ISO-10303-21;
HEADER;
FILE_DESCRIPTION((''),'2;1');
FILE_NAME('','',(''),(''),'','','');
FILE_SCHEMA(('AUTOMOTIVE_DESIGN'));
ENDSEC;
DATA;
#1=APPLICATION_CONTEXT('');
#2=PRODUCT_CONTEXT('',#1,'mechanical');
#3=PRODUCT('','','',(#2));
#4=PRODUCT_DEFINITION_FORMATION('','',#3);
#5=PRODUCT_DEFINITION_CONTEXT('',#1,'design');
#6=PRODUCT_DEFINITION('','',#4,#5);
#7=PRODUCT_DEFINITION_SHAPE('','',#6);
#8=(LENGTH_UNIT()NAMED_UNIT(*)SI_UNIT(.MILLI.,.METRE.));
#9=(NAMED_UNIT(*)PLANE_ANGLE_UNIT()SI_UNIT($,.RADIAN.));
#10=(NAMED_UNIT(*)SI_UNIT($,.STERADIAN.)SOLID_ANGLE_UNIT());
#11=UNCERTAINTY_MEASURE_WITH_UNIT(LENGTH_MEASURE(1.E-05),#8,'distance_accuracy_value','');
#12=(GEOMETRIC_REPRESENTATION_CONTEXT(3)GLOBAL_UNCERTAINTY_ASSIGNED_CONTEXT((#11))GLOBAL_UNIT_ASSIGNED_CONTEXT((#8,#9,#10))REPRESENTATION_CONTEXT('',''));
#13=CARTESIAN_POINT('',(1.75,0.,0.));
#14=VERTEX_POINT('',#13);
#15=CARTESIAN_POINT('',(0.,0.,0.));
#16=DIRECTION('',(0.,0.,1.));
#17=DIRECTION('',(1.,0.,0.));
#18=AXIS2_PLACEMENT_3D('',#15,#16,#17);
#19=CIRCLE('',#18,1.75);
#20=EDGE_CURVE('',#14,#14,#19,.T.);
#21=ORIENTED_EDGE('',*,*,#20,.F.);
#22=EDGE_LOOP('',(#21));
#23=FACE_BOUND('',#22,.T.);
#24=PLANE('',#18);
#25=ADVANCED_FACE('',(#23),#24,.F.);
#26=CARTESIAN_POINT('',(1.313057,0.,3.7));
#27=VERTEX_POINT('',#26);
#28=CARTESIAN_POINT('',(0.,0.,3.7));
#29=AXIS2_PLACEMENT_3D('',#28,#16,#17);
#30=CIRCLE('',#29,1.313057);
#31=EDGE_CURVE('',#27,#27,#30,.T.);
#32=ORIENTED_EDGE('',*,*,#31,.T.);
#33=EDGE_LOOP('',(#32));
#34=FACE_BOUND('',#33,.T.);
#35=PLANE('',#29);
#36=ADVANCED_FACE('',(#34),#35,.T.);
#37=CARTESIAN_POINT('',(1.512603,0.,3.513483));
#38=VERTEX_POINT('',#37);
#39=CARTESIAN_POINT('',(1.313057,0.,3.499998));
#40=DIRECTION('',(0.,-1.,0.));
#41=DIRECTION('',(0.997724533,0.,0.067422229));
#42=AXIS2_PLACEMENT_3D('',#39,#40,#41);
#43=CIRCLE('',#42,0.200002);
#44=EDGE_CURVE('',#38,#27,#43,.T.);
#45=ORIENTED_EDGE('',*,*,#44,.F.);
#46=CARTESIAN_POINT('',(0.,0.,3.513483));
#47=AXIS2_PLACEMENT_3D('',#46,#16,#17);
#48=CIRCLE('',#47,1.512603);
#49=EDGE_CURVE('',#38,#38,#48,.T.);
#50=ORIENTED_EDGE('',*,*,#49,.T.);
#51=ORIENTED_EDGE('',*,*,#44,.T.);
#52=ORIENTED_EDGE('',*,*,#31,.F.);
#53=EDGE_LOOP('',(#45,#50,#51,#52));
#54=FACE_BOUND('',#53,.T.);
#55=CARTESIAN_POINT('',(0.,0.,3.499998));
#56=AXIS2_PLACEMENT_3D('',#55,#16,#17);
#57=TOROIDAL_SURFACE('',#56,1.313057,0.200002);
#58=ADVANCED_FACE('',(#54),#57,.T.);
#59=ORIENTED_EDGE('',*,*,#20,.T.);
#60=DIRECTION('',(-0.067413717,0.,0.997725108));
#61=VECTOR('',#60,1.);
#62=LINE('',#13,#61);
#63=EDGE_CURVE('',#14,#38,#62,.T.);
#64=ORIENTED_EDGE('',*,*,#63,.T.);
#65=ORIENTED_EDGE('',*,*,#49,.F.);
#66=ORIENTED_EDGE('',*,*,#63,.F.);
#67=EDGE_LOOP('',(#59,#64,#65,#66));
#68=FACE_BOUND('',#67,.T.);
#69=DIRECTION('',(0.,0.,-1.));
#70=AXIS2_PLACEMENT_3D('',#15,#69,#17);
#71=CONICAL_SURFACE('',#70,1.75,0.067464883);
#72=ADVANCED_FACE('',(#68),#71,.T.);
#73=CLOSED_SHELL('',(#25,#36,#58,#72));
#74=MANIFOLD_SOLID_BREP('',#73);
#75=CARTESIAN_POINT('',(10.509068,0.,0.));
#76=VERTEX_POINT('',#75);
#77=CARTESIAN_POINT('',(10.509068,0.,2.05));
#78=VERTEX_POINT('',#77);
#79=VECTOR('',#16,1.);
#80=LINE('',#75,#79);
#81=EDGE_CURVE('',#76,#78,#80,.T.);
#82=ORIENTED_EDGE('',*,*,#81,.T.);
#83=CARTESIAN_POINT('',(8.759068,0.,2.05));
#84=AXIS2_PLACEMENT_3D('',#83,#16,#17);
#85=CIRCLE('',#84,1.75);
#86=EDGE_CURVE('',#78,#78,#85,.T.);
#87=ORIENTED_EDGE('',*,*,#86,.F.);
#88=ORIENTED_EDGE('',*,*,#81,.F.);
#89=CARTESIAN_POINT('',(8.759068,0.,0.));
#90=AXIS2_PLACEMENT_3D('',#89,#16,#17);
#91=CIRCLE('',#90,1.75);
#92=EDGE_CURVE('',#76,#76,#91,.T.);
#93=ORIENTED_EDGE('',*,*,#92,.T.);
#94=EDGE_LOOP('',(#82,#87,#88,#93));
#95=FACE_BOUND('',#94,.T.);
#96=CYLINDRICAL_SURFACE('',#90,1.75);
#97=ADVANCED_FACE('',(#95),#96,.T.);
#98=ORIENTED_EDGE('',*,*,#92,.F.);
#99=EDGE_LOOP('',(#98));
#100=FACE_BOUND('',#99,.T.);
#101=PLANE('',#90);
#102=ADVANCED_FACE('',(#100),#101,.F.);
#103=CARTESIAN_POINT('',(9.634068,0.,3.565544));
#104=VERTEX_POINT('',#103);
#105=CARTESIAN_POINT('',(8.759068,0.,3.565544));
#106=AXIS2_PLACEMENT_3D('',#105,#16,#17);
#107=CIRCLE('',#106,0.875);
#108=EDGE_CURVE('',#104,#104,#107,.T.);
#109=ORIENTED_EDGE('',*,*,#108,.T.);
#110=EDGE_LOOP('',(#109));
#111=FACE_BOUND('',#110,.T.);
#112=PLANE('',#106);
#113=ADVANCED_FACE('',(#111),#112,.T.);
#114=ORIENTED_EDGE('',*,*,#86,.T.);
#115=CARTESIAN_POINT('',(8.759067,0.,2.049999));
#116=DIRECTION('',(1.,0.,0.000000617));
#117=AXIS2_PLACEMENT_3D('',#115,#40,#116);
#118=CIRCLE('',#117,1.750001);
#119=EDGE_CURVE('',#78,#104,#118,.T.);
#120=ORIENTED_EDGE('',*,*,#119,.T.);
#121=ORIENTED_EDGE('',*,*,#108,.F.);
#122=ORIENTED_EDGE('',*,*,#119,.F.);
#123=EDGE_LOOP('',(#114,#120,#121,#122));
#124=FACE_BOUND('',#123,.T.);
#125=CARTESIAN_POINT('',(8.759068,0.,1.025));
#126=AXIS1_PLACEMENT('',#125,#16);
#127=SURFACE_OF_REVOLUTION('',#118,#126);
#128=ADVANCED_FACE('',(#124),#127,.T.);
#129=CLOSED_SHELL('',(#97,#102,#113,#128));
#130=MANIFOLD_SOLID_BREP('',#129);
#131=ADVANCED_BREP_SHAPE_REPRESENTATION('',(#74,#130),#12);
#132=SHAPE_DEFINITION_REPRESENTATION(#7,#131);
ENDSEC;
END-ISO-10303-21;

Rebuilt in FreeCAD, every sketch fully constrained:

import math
import FreeCAD as App
import Part
import Sketcher

V = App.Vector

doc = App.newDocument("Part")
params = doc.addObject("Spreadsheet::Sheet", "Params")
for row, (alias, value) in enumerate([
    ("sketch1_radius", "0.200002 mm"),
    ("sketch1_height", "3.7 mm"),
    ("sketch1_width", "1.75 mm"),
    ("revolution_angle", "360 deg"),
    ("sketch2_radius", "1.750001 mm"),
    ("sketch2_height", "2.05 mm"),
    ("revolution2_angle", "360 deg"),
], start=1):
    params.set(f"A{row}", alias)
    params.set(f"B{row}", "=" + value)
    params.setAlias(f"B{row}", alias)

body = doc.addObject("PartDesign::Body", "Body")

sketch1 = doc.addObject("Sketcher::SketchObject", "Sketch")
body.addObject(sketch1)
sketch1.AttachmentSupport = (doc.XZ_Plane, [""])
sketch1.MapMode = "FlatFace"
sketch1.addGeometry(Part.LineSegment(V(0, 3.7, 0), V(0, 0, 0)), False)
sketch1.addGeometry(Part.LineSegment(V(0, 0, 0), V(1.75, 0, 0)), False)
sketch1.addGeometry(Part.LineSegment(V(1.75, 0, 0), V(1.51, 3.51, 0)), False)
sketch1.addGeometry(Part.ArcOfCircle(Part.Circle(V(1.31, 3.5, 0), V(0, 0, 1), 0.2), math.radians(4), math.radians(90)), False)
sketch1.addGeometry(Part.LineSegment(V(1.31, 3.7, 0), V(0, 3.7, 0)), False)
sketch1.addConstraint(Sketcher.Constraint("Coincident", 0, 2, 1, 1))
sketch1.addConstraint(Sketcher.Constraint("Coincident", 1, 2, 2, 1))
sketch1.addConstraint(Sketcher.Constraint("Coincident", 2, 2, 3, 1))
sketch1.addConstraint(Sketcher.Constraint("Coincident", 3, 2, 4, 1))
sketch1.addConstraint(Sketcher.Constraint("Coincident", 4, 2, 0, 1))
sketch1.addConstraint(Sketcher.Constraint("Vertical", 0))
sketch1.addConstraint(Sketcher.Constraint("Horizontal", 1))
sketch1.addConstraint(Sketcher.Constraint("Horizontal", 4))
sketch1.addConstraint(Sketcher.Constraint("Coincident", 0, 2, -1, 1))
sketch1.addConstraint(Sketcher.Constraint("Radius", 3, 0.200002))
sketch1.addConstraint(Sketcher.Constraint("DistanceY", 0, 2, 0, 1, 3.7))
sketch1.addConstraint(Sketcher.Constraint("DistanceX", 1, 1, 1, 2, 1.75))
sketch1.addConstraint(Sketcher.Constraint("DistanceX", 4, 2, 4, 1, 1.313057))
sketch1.addConstraint(Sketcher.Constraint("Distance", 2, 3.521494))
sketch1.addConstraint(Sketcher.Constraint("DistanceX", -1, 1, 3, 3, 1.313057))
sketch1.setExpression("Constraints[9]", "Params.sketch1_radius")
sketch1.setExpression("Constraints[10]", "Params.sketch1_height")
sketch1.setExpression("Constraints[11]", "Params.sketch1_width")
revolution = doc.addObject("PartDesign::Revolution", "Revolution")
body.addObject(revolution)
revolution.Profile = sketch1
revolution.ReferenceAxis = (sketch1, ["V_Axis"])
revolution.setExpression("Angle", "Params.revolution_angle")
body2 = doc.addObject("PartDesign::Body", "Body001")

sketch2 = doc.addObject("Sketcher::SketchObject", "Sketch001")
body2.addObject(sketch2)
sketch2.AttachmentSupport = (doc.getObject("XZ_Plane001"), [""])
sketch2.MapMode = "FlatFace"
sketch2.addGeometry(Part.LineSegment(V(8.8, 0, 0), V(10.5, 0, 0)), False)
sketch2.addGeometry(Part.LineSegment(V(10.5, 0, 0), V(10.5, 2, 0)), False)
sketch2.addGeometry(Part.ArcOfCircle(Part.Circle(V(8.8, 2, 0), V(0, 0, 1), 1.8), math.radians(0), math.radians(60)), False)
sketch2.addGeometry(Part.LineSegment(V(9.6, 3.6, 0), V(8.8, 3.6, 0)), False)
sketch2.addGeometry(Part.LineSegment(V(8.8, 3.6, 0), V(8.8, 0, 0)), False)
sketch2.addGeometry(Part.LineSegment(V(8.8, 0, 0), V(8.8, 3.6, 0)), True)
sketch2.addConstraint(Sketcher.Constraint("Coincident", 0, 2, 1, 1))
sketch2.addConstraint(Sketcher.Constraint("Tangent", 1, 2, 2, 1))
sketch2.addConstraint(Sketcher.Constraint("Coincident", 2, 2, 3, 1))
sketch2.addConstraint(Sketcher.Constraint("Coincident", 3, 2, 4, 1))
sketch2.addConstraint(Sketcher.Constraint("Coincident", 4, 2, 0, 1))
sketch2.addConstraint(Sketcher.Constraint("Horizontal", 0))
sketch2.addConstraint(Sketcher.Constraint("Vertical", 1))
sketch2.addConstraint(Sketcher.Constraint("Horizontal", 3))
sketch2.addConstraint(Sketcher.Constraint("Vertical", 4))
sketch2.addConstraint(Sketcher.Constraint("Vertical", 5))
sketch2.addConstraint(Sketcher.Constraint("Coincident", 5, 1, 4, 2))
sketch2.addConstraint(Sketcher.Constraint("PointOnObject", 0, 2, -1))
sketch2.addConstraint(Sketcher.Constraint("Horizontal", 2, 2, 5, 2))
sketch2.addConstraint(Sketcher.Constraint("Vertical", 2, 3, 3, 2))
sketch2.addConstraint(Sketcher.Constraint("Radius", 2, 1.750001))
sketch2.addConstraint(Sketcher.Constraint("DistanceY", 1, 1, 1, 2, 2.05))
sketch2.addConstraint(Sketcher.Constraint("DistanceX", 3, 2, 3, 1, 0.875))
sketch2.addConstraint(Sketcher.Constraint("DistanceX", -1, 1, 2, 2, 9.634068))
sketch2.setExpression("Constraints[14]", "Params.sketch2_radius")
sketch2.setExpression("Constraints[15]", "Params.sketch2_height")
revolution2 = doc.addObject("PartDesign::Revolution", "Revolution001")
body2.addObject(revolution2)
revolution2.Profile = sketch2
revolution2.ReferenceAxis = (sketch2, ["Axis0"])
revolution2.setExpression("Angle", "Params.revolution2_angle")

doc.recompute()
